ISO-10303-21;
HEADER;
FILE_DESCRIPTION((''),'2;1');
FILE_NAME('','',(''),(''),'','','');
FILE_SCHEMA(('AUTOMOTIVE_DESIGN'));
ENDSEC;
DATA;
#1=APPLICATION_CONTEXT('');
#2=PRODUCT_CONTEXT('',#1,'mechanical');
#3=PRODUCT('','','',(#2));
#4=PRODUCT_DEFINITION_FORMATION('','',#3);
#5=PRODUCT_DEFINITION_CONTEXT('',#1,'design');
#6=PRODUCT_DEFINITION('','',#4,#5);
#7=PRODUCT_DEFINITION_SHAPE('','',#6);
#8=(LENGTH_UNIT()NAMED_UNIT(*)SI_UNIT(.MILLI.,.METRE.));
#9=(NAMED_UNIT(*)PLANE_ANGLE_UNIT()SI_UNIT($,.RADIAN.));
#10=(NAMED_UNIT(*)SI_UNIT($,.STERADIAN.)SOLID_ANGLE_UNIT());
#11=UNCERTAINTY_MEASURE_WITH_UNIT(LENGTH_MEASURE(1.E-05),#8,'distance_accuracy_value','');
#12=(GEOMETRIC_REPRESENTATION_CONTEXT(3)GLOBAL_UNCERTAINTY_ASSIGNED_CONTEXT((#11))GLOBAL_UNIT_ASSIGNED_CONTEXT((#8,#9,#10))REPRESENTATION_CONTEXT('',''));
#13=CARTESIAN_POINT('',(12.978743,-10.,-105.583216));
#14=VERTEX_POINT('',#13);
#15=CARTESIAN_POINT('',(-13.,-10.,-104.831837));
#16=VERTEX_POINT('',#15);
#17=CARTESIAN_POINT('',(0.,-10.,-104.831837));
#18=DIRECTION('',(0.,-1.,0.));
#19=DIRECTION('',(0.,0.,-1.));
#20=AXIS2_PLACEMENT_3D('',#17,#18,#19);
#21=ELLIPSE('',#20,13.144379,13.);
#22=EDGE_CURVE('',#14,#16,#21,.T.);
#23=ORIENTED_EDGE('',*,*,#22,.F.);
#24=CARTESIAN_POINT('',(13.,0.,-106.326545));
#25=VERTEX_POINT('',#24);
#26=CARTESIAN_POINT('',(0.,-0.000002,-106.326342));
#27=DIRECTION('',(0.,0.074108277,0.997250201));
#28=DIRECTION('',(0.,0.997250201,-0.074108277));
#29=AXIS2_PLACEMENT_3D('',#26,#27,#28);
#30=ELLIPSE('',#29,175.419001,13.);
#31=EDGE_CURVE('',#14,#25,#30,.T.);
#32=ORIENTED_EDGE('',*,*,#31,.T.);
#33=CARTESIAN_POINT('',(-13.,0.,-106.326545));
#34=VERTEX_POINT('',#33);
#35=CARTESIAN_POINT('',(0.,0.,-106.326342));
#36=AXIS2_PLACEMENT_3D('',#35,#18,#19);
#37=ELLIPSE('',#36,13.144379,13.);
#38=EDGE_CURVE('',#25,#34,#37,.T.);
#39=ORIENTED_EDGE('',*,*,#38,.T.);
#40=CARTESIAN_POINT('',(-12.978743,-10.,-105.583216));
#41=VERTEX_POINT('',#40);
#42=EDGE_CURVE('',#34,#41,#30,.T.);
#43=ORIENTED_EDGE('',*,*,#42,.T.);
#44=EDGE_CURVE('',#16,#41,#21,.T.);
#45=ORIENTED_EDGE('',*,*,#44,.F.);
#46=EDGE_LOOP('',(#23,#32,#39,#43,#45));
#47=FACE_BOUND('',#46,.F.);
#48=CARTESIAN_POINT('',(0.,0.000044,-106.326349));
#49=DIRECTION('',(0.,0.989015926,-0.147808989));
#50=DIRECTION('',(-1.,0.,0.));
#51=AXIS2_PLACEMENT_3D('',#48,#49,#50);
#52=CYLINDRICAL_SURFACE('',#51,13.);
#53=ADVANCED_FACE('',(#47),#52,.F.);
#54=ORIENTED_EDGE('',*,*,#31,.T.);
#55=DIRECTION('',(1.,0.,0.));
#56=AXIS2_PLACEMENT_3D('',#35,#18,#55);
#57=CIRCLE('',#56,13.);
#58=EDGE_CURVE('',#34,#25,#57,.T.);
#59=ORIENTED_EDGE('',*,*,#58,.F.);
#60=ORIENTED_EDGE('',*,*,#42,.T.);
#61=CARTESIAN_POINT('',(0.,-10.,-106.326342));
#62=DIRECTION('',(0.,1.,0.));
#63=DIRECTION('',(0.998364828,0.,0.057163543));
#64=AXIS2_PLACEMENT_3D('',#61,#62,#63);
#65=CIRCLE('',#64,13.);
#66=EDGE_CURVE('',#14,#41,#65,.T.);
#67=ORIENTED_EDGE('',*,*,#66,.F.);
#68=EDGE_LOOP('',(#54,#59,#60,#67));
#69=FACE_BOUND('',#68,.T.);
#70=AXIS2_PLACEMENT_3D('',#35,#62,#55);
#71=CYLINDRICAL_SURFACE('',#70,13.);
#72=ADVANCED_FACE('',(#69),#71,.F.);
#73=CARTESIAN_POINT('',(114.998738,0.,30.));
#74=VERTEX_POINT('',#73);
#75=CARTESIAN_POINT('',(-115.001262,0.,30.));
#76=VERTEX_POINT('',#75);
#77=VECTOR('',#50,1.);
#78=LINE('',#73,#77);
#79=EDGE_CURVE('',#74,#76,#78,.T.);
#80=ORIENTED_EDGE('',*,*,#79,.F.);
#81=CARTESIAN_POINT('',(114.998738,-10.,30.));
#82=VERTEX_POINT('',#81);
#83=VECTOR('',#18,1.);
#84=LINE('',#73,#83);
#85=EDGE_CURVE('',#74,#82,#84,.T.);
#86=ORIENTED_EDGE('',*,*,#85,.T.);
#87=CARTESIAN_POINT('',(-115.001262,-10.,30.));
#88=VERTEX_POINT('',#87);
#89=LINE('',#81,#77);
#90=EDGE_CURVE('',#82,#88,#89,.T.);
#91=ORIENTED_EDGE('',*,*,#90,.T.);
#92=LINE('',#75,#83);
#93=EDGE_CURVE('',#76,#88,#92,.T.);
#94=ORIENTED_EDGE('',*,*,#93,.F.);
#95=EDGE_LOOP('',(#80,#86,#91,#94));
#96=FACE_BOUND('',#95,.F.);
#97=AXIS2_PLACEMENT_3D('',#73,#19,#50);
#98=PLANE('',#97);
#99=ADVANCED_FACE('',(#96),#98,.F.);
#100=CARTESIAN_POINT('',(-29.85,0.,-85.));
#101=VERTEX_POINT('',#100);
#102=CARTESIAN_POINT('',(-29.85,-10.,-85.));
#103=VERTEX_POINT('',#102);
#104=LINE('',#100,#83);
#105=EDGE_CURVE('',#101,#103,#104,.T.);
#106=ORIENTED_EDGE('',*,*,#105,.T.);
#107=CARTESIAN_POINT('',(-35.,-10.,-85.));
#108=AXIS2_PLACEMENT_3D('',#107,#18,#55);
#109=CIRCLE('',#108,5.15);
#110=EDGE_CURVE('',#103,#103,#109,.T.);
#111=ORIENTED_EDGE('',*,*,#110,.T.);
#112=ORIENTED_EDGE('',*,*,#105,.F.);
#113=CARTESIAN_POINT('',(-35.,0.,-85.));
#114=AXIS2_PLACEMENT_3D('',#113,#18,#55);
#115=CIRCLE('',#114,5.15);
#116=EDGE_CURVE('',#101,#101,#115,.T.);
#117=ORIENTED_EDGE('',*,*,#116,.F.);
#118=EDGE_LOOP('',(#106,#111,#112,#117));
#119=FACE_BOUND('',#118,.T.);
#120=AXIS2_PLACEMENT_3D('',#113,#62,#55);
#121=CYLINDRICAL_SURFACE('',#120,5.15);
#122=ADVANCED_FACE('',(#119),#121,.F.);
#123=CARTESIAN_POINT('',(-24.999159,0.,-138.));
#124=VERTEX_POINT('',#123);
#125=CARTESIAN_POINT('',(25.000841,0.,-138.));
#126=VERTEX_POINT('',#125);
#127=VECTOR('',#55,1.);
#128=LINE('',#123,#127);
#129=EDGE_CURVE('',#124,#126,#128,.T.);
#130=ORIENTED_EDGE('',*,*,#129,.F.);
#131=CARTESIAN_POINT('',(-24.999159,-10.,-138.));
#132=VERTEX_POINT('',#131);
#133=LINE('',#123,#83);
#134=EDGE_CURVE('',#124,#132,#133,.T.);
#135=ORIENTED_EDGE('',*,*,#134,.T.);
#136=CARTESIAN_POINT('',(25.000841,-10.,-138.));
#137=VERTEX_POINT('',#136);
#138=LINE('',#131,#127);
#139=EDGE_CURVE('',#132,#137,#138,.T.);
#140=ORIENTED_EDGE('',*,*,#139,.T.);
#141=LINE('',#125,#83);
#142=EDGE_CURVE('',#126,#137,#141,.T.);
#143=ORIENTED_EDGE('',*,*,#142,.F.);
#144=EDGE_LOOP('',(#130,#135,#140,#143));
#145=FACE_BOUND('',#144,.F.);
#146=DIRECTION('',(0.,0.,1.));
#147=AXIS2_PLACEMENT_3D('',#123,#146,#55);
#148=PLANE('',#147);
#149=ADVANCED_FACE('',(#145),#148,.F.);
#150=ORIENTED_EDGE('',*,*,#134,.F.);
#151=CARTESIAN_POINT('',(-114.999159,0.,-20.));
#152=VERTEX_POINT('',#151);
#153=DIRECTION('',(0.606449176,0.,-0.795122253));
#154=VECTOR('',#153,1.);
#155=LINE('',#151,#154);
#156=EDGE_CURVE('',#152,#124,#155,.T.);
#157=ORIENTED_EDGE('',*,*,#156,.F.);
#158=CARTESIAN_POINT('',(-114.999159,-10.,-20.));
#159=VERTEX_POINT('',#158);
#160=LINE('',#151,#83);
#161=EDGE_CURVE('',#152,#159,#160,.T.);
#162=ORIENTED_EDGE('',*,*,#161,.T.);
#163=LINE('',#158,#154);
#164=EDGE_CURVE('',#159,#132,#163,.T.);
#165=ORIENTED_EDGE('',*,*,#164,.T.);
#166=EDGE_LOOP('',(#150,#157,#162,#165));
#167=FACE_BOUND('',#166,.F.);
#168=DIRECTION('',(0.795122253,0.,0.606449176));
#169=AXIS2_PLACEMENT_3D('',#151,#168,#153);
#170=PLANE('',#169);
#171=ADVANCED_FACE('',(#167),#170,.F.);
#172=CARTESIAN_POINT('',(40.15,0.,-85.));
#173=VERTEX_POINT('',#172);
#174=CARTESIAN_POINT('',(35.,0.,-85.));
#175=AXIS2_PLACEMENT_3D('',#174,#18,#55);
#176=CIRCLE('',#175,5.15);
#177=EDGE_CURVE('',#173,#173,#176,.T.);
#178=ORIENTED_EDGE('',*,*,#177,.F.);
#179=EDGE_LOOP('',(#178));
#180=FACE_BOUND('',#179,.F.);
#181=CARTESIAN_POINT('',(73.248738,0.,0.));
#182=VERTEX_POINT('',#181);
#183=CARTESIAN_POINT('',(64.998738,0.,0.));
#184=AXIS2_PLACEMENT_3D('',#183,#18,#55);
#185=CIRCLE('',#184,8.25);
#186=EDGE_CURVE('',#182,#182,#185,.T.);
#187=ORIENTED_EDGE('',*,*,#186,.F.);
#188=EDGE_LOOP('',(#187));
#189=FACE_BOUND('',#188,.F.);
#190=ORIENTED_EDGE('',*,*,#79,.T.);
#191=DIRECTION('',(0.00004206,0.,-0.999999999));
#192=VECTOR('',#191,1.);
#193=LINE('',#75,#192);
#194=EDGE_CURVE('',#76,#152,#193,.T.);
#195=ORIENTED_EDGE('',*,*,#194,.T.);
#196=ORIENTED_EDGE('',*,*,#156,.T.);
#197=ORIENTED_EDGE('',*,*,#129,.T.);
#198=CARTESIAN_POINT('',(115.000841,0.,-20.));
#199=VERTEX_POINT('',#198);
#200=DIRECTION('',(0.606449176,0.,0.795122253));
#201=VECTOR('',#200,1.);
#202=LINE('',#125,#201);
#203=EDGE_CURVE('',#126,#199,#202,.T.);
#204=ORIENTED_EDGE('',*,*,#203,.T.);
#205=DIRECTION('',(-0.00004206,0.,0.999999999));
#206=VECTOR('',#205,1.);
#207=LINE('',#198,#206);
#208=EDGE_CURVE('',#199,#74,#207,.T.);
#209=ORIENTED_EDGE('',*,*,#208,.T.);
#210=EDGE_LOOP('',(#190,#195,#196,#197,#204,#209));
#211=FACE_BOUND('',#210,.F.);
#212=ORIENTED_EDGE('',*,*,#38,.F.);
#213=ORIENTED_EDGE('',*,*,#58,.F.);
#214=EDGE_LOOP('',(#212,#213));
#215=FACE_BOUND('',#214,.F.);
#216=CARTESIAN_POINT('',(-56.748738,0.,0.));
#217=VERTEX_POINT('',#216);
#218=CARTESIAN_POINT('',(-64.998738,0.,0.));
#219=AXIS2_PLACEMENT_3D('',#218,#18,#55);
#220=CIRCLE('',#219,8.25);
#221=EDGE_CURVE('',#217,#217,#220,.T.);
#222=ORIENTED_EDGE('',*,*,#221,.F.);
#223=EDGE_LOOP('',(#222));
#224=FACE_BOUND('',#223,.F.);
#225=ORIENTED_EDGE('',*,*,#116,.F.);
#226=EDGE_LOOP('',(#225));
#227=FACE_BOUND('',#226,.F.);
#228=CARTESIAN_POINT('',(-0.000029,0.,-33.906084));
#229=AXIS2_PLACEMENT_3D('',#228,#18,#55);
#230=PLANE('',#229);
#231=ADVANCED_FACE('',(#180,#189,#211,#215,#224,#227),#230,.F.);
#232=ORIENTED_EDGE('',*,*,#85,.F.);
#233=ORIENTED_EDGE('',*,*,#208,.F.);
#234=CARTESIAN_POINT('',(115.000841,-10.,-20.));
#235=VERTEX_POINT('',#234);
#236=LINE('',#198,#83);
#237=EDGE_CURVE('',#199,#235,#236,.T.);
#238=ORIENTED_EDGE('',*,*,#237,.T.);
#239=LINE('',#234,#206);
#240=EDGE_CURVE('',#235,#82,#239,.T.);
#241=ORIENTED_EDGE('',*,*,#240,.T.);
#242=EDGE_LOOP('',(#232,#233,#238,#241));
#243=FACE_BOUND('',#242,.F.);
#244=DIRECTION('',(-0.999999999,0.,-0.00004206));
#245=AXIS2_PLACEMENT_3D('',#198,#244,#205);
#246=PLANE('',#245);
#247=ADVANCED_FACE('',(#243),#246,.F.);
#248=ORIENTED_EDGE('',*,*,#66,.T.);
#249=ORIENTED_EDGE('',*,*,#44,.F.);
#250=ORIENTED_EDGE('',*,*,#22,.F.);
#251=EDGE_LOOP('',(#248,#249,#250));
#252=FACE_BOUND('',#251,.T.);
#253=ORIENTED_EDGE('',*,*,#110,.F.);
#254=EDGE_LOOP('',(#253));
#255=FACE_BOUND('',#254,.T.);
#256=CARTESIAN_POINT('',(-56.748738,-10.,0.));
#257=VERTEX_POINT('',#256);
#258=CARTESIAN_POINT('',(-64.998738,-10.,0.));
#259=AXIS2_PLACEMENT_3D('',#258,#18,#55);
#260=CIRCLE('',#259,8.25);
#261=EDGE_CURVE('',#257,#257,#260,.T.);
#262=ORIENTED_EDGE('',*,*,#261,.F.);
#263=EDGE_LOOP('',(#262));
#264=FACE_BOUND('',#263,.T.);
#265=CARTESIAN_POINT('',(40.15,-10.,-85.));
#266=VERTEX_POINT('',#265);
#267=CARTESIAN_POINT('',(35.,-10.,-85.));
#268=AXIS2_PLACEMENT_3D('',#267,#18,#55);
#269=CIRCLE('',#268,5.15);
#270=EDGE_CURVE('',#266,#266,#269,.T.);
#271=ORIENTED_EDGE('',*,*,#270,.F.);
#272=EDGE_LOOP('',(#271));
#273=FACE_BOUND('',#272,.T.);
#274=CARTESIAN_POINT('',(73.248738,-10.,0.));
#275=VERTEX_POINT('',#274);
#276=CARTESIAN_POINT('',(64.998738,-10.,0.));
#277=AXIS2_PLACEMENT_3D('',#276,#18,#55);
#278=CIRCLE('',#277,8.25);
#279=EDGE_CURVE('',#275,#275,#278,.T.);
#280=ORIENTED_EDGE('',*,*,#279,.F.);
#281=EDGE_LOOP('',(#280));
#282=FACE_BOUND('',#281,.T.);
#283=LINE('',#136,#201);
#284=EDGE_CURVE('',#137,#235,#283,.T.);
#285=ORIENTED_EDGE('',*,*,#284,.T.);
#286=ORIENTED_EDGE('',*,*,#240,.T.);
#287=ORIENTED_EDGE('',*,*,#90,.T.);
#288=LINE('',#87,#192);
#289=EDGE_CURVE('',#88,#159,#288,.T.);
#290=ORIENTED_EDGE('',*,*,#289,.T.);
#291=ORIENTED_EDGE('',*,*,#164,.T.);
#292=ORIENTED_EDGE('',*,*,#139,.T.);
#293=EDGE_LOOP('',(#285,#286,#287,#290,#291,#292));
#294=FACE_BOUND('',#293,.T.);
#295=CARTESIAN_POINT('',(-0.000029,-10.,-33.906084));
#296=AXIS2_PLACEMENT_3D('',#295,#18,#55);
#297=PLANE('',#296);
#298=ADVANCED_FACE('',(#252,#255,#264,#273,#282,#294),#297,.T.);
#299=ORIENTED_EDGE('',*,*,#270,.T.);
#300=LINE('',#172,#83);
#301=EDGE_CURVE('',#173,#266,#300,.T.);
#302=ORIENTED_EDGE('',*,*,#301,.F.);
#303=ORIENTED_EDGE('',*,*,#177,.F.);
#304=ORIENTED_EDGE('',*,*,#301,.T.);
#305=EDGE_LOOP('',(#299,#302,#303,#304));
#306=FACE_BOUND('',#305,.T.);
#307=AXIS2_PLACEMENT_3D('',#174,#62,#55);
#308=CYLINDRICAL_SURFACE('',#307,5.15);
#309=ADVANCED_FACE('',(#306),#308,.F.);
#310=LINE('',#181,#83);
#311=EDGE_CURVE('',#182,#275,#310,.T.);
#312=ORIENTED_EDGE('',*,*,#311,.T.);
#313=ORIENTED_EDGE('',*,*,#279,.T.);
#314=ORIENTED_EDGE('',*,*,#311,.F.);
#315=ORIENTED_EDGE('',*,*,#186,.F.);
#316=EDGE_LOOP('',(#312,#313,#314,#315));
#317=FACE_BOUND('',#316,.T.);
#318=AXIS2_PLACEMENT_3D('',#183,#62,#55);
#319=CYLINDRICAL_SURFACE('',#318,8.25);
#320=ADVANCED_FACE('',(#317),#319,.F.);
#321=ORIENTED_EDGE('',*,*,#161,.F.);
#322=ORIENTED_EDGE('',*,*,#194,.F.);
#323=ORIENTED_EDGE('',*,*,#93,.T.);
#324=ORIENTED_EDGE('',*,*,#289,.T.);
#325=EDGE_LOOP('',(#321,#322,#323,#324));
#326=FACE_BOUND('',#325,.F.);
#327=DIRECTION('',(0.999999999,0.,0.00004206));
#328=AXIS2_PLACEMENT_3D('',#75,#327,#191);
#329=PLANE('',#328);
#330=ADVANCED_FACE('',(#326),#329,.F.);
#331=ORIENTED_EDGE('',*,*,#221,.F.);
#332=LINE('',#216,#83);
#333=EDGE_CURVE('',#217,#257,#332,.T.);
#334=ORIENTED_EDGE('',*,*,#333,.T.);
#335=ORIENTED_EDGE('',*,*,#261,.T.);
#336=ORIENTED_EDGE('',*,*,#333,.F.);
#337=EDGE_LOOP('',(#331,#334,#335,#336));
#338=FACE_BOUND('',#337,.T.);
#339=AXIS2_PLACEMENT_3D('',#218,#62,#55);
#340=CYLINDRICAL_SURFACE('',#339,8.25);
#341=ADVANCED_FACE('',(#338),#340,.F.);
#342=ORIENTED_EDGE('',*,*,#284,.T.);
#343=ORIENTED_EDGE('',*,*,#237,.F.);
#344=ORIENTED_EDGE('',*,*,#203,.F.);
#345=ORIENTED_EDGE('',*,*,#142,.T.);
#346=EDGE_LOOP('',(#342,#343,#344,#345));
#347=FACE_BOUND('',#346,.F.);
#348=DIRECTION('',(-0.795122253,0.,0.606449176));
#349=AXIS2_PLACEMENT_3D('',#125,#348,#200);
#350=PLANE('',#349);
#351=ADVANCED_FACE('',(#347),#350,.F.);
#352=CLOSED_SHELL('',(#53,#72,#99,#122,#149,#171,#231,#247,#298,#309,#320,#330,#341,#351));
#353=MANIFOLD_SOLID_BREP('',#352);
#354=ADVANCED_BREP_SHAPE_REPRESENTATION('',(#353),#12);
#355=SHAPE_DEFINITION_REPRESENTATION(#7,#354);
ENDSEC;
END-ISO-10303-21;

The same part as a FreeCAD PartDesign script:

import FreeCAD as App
import Part
import Sketcher
from FreeCAD import Vector
Q = App.Units.Quantity

doc = App.newDocument("Part")
body = doc.addObject("PartDesign::Body", "Body")

sketch1 = body.newObject("Sketcher::SketchObject", "Sketch")
sketch1.AttachmentSupport = (doc.getObject("XZ_Plane"), [""])
sketch1.MapMode = "FlatFace"
sketch1.addGeometry(Part.LineSegment(Vector(115.000841, -20, 0), Vector(114.998738, 30, 0)), False)
sketch1.addGeometry(Part.LineSegment(Vector(114.998738, 30, 0), Vector(-115.001262, 30, 0)), False)
sketch1.addGeometry(Part.LineSegment(Vector(-115.001262, 30, 0), Vector(-114.999159, -20, 0)), False)
sketch1.addGeometry(Part.LineSegment(Vector(-114.999159, -20, 0), Vector(-24.999159, -138, 0)), False)
sketch1.addGeometry(Part.LineSegment(Vector(-24.999159, -138, 0), Vector(25.000841, -138, 0)), False)
sketch1.addGeometry(Part.LineSegment(Vector(25.000841, -138, 0), Vector(115.000841, -20, 0)), False)
sketch1.addGeometry(Part.Circle(Vector(-35, -85, 0), Vector(0, 0, 1), 5.15), False)
sketch1.addGeometry(Part.Circle(Vector(0, -106.326342, 0), Vector(0, 0, 1), 13), False)
sketch1.addGeometry(Part.Circle(Vector(35, -85, 0), Vector(0, 0, 1), 5.15), False)
sketch1.addGeometry(Part.Circle(Vector(-64.998738, 0, 0), Vector(0, 0, 1), 8.25), False)
sketch1.addGeometry(Part.Circle(Vector(64.998738, 0, 0), Vector(0, 0, 1), 8.25), False)
sketch1.addConstraint(Sketcher.Constraint("Coincident", 0, 2, 1, 1))
sketch1.addConstraint(Sketcher.Constraint("Coincident", 1, 2, 2, 1))
sketch1.addConstraint(Sketcher.Constraint("Coincident", 2, 2, 3, 1))
sketch1.addConstraint(Sketcher.Constraint("Coincident", 3, 2, 4, 1))
sketch1.addConstraint(Sketcher.Constraint("Coincident", 4, 2, 5, 1))
sketch1.addConstraint(Sketcher.Constraint("Coincident", 5, 2, 0, 1))
sketch1.addConstraint(Sketcher.Constraint("Horizontal", 1))
sketch1.addConstraint(Sketcher.Constraint("Horizontal", 4))
sketch1.addConstraint(Sketcher.Constraint("Equal", 6, 8))
sketch1.addConstraint(Sketcher.Constraint("Equal", 9, 10))
sketch1.addConstraint(Sketcher.Constraint("Symmetric", 9, 3, 10, 3, -1, 1))
sketch1.addConstraint(Sketcher.Constraint("Symmetric", 6, 3, 8, 3, -2))
sketch1.addConstraint(Sketcher.Constraint("PointOnObject", 7, 3, -2))
sketch1.addConstraint(Sketcher.Constraint("PointOnObject", 9, 3, -1))
sketch1.addConstraint(Sketcher.Constraint("Parallel", 0, 2))
sketch1.addConstraint(Sketcher.Constraint("Horizontal", 2, 2, 5, 2))
sketch1.addConstraint(Sketcher.Constraint("Equal", 3, 5))
sketch1.addConstraint(Sketcher.Constraint("Diameter", 7, Q("26 mm")))
sketch1.addConstraint(Sketcher.Constraint("Diameter", 6, Q("10.3 mm")))
sketch1.addConstraint(Sketcher.Constraint("Diameter", 9, Q("16.5 mm")))
sketch1.addConstraint(Sketcher.Constraint("DistanceX", 1, 2, 1, 1, Q("230 mm")))
sketch1.addConstraint(Sketcher.Constraint("DistanceX", 4, 1, 4, 2, Q("50 mm")))
sketch1.addConstraint(Sketcher.Constraint("Distance", 0, Q("50 mm")))
sketch1.addConstraint(Sketcher.Constraint("DistanceX", 6, 3, -1, 1, Q("35 mm")))
sketch1.addConstraint(Sketcher.Constraint("DistanceY", 6, 3, -1, 1, Q("85 mm")))
sketch1.addConstraint(Sketcher.Constraint("DistanceY", -1, 1, 0, 2, Q("30 mm")))
sketch1.addConstraint(Sketcher.Constraint("DistanceY", 3, 2, -1, 1, Q("138 mm")))
sketch1.addConstraint(Sketcher.Constraint("DistanceX", 10, 3, 0, 2, Q("50 mm")))
sketch1.addConstraint(Sketcher.Constraint("DistanceY", 7, 3, -1, 1, Q("106.326342 mm")))
sketch1.addConstraint(Sketcher.Constraint("DistanceX", 9, 3, -1, 1, Q("64.998738 mm")))
sketch1.addConstraint(Sketcher.Constraint("DistanceX", 2, 2, -1, 1, Q("114.999159 mm")))
pad1 = body.newObject("PartDesign::Pad", "Pad")
pad1.Profile = sketch1
pad1.Length = 10

sketch2 = body.newObject("Sketcher::SketchObject", "Sketch001")
sketch2.Placement = App.Placement(Vector(0, 15.543407, -2.322978), App.Rotation(Vector(-1, 0, 0), Vector(0, 0.147808989, 0.989015926), Vector(0, 0.989015926, -0.147808989), "ZXY"))
sketch2.addGeometry(Part.Circle(Vector(0, -105.158439, 0), Vector(0, 0, 1), 13), False)
sketch2.addConstraint(Sketcher.Constraint("PointOnObject", 0, 3, -2))
sketch2.addConstraint(Sketcher.Constraint("Diameter", 0, Q("26 mm")))
sketch2.addConstraint(Sketcher.Constraint("DistanceY", 0, 3, -1, 1, Q("105.158439 mm")))
pocket1 = body.newObject("PartDesign::Pocket", "Pocket")
pocket1.Profile = sketch2
pocket1.Type = "ThroughAll"

doc.recompute()
